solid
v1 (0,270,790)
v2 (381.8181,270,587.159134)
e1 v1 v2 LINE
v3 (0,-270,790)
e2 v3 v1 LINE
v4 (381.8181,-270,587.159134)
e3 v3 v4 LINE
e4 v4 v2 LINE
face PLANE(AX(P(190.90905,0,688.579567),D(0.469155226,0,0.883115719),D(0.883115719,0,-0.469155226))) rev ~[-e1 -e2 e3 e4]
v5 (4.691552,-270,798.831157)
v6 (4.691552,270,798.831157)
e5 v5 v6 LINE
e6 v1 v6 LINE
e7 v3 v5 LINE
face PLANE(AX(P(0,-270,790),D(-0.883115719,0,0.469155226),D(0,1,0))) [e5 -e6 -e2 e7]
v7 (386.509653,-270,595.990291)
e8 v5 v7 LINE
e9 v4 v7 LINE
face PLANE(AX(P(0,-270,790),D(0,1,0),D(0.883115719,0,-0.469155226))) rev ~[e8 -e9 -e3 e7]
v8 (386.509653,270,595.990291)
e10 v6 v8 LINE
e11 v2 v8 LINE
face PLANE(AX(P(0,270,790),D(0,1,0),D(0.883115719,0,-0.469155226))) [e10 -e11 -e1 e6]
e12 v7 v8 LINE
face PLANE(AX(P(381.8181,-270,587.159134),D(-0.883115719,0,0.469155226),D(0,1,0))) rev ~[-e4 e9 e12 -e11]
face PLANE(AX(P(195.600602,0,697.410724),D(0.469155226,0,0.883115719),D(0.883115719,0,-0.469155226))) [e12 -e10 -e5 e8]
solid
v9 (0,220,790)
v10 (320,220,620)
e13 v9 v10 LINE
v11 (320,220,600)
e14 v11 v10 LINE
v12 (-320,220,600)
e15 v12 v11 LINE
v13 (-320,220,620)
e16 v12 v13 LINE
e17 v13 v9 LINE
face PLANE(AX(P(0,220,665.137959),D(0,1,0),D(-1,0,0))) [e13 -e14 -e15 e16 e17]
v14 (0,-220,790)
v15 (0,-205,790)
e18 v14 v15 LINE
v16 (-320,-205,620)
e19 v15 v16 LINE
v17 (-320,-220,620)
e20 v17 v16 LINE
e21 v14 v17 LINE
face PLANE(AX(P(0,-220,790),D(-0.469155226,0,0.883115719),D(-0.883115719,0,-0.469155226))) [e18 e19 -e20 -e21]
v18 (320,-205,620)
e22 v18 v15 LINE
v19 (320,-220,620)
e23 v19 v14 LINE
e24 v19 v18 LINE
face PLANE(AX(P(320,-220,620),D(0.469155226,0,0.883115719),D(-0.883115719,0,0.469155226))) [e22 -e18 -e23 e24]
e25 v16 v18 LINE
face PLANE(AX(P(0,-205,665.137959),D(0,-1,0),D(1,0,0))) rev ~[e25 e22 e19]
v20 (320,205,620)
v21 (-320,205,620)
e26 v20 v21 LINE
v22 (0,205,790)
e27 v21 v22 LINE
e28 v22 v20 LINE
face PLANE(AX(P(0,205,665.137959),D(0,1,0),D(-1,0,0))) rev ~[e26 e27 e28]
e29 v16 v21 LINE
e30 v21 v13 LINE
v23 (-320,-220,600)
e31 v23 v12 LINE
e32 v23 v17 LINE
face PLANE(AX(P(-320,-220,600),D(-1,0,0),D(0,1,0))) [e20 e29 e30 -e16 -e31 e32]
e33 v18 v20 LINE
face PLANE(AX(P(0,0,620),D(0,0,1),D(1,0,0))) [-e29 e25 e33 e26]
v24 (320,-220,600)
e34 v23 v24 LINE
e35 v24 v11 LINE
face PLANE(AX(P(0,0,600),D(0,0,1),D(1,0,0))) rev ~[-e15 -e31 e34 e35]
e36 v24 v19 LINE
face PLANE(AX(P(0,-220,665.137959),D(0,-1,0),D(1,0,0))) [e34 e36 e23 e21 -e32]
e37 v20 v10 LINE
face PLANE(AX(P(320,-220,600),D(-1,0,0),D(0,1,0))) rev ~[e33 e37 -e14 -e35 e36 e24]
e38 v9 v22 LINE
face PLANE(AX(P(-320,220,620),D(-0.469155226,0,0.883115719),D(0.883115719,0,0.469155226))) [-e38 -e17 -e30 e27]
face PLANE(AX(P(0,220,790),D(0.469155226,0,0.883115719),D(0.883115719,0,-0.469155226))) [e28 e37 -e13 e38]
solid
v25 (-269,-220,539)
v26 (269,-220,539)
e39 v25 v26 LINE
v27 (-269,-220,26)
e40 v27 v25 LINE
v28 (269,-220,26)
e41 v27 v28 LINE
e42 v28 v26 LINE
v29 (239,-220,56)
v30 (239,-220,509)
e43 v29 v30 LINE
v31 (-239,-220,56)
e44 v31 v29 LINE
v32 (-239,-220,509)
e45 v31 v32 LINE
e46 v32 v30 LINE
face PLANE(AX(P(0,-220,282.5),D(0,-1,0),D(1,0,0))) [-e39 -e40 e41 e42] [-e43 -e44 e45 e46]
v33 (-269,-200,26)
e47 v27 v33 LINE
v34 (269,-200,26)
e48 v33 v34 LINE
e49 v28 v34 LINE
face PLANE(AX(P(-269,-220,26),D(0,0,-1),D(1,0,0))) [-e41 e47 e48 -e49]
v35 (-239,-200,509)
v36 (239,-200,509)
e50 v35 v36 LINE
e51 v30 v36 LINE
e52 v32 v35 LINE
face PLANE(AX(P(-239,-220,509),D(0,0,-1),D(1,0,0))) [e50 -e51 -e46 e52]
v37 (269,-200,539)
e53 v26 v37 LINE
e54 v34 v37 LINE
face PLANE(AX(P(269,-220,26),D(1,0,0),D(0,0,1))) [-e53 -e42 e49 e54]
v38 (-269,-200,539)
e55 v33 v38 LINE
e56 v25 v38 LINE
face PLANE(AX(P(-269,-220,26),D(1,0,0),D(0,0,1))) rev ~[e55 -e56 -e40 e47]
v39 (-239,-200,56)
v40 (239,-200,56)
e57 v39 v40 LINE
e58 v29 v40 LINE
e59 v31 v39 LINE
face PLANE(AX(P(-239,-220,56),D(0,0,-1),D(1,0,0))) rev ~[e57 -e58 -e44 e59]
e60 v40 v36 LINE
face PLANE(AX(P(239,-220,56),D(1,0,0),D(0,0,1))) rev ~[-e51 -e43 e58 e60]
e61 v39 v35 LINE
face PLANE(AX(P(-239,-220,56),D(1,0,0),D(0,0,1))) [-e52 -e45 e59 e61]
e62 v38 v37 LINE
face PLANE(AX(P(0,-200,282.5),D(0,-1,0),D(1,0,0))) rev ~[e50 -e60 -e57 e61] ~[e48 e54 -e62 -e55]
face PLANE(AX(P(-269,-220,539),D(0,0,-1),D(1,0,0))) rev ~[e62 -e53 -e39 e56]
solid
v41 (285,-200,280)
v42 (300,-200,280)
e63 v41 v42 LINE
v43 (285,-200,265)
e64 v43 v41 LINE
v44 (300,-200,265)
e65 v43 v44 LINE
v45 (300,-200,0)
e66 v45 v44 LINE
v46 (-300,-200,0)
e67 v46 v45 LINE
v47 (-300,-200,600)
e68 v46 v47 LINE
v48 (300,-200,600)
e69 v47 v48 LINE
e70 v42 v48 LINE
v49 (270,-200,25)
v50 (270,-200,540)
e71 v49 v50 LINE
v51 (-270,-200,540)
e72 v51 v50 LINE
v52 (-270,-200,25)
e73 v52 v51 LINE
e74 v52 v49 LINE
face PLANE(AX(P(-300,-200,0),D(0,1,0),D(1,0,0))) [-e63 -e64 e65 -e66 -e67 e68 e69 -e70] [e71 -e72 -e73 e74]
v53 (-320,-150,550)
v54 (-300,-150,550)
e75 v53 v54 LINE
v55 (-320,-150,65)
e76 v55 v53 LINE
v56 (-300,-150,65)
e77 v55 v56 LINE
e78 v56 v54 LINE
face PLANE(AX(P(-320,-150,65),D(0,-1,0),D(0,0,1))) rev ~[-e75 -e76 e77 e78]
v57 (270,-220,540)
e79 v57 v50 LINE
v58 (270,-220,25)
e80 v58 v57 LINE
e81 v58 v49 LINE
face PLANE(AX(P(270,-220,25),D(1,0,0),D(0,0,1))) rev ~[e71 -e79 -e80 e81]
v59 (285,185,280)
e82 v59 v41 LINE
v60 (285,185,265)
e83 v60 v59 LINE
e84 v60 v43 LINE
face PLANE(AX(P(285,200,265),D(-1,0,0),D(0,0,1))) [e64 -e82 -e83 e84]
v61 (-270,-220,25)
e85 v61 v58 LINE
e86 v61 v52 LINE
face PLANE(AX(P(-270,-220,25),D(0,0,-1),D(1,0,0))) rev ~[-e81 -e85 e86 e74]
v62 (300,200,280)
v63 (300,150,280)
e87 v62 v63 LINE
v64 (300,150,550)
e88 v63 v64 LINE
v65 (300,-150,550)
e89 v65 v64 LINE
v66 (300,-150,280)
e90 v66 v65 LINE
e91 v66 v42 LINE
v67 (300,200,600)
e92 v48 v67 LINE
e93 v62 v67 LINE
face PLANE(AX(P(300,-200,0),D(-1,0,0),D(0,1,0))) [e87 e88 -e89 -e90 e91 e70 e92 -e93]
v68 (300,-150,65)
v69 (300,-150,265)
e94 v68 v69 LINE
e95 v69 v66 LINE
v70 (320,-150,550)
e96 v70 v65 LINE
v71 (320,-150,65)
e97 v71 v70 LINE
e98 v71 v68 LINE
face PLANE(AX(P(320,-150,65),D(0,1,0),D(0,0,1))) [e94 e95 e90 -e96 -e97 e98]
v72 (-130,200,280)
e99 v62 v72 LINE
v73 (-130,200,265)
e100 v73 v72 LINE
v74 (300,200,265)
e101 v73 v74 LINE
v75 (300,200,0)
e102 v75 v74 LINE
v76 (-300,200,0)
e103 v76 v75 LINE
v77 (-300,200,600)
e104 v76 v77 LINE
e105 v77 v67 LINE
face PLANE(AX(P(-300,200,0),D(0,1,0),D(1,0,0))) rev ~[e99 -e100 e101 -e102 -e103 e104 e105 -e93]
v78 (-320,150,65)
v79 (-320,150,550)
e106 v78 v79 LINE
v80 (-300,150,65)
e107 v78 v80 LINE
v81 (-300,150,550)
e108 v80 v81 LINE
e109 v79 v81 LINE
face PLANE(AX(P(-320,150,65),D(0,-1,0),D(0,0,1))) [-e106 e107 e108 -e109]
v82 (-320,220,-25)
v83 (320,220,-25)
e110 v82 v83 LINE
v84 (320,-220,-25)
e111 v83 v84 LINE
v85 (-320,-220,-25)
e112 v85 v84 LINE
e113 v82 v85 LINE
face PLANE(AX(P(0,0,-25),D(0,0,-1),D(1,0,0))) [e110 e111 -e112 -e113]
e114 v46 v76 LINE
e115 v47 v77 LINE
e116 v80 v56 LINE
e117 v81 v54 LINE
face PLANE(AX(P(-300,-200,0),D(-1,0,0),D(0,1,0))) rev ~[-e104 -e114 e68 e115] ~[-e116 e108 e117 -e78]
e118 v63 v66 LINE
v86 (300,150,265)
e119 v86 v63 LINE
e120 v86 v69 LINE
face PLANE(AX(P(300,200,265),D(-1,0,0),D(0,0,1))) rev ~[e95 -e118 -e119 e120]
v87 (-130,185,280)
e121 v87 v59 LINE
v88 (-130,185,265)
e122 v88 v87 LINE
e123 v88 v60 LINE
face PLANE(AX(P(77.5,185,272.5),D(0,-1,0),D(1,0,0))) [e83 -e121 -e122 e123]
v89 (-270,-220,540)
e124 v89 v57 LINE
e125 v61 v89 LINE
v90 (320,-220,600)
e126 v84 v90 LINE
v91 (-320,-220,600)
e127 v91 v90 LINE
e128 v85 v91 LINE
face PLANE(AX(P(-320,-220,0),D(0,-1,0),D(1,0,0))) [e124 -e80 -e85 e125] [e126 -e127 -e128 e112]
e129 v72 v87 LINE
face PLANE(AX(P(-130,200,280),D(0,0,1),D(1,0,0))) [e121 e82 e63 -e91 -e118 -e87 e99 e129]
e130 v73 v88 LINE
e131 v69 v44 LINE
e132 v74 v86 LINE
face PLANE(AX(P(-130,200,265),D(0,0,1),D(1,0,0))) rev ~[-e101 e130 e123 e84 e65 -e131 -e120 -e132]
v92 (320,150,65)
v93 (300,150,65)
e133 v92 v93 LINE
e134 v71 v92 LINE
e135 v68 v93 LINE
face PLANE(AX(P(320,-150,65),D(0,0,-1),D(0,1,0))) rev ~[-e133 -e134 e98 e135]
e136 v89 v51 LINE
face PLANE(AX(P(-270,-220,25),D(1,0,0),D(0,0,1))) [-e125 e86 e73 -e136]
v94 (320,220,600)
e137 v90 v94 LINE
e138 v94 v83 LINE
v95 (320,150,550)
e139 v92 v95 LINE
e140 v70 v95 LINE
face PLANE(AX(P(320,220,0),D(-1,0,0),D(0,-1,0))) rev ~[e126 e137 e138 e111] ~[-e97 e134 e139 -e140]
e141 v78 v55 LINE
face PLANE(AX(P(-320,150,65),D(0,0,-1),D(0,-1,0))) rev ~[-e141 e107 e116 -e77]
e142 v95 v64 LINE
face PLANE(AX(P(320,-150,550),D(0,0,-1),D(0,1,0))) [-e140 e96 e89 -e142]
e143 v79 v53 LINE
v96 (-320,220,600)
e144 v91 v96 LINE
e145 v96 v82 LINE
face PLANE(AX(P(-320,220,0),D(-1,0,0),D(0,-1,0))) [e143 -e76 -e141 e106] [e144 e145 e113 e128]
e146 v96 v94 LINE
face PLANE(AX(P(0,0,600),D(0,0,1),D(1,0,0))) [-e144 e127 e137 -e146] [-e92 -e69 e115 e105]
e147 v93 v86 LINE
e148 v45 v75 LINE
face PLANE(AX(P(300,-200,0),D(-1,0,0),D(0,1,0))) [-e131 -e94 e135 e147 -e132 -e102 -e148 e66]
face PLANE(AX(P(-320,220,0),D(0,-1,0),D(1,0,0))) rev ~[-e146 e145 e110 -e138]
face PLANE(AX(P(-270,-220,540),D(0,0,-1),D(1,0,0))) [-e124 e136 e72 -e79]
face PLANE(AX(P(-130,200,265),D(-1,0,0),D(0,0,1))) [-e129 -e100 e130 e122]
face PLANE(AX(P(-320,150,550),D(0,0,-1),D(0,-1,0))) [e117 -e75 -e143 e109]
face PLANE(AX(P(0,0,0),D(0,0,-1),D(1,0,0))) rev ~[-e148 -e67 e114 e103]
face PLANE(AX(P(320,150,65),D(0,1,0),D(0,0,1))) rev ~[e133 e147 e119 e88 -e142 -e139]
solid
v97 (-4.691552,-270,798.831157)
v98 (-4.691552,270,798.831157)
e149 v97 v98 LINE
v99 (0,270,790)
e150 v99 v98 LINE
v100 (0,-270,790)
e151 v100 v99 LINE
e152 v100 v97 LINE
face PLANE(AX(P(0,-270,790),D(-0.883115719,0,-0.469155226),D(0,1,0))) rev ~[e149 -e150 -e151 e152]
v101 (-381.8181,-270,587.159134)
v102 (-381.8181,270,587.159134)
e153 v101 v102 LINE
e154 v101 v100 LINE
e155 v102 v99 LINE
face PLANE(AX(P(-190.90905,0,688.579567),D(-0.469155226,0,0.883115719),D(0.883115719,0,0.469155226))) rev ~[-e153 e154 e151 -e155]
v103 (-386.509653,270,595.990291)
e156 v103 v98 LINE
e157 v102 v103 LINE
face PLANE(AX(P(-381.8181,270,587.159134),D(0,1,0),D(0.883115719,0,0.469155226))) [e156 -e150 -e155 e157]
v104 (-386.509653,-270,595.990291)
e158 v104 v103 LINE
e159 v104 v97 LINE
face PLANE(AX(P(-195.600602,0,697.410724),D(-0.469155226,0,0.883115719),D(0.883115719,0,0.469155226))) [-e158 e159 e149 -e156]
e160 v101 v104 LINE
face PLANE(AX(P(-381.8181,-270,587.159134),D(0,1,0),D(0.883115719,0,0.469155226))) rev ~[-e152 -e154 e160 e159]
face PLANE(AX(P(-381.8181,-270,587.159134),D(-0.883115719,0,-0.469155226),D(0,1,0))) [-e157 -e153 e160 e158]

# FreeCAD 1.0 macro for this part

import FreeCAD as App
import Part
import Sketcher
from FreeCAD import Vector
Q = App.Units.Quantity

doc = App.newDocument("Part")
params = doc.addObject("Spreadsheet::Sheet", "Params")
for row, (alias, value) in enumerate([
    ("sketch1_width", "640 mm"),
    ("sketch1_width2", "600 mm"),
    ("sketch1_height", "440 mm"),
    ("sketch1_height2", "400 mm"),
    ("pad1_length", "600 mm"),
    ("sketch2_width", "300 mm"),
    ("sketch2_height", "485 mm"),
    ("pocket1_length", "20 mm"),
    ("sketch3_width", "540 mm"),
    ("sketch3_height", "515 mm"),
    ("pocket2_length", "20 mm"),
    ("sketch4_width", "300 mm"),
    ("sketch4_height", "485 mm"),
    ("sketch5_width", "640 mm"),
    ("sketch5_height", "440 mm"),
    ("pad2_length", "25 mm"),
    ("sketch6_width", "15 mm"),
    ("sketch7_width", "415 mm"),
    ("sketch7_height", "15 mm"),
    ("pad4_length", "15 mm"),
    ("sketch8_width", "640 mm"),
    ("sketch8_height", "440 mm"),
    ("pad5_length", "20 mm"),
    ("sketch9_width", "640 mm"),
    ("pad6_length", "15 mm"),
    ("sketch10_width", "640 mm"),
    ("pad7_length", "15 mm"),
    ("sketch11_height", "539.999999 mm"),
    ("pad8_length", "10 mm"),
    ("sketch12_height", "539.999999 mm"),
    ("pad9_length", "10 mm"),
    ("sketch13_width", "538 mm"),
    ("sketch13_width2", "478 mm"),
    ("sketch13_height", "513 mm"),
    ("sketch13_height2", "453 mm"),
    ("pad10_length", "20 mm"),
], start=1):
    params.set(f"A{row}", alias)
    params.set(f"B{row}", "=" + value)
    params.setAlias(f"B{row}", alias)

body = doc.addObject("PartDesign::Body", "Body")

# Sketch on XY plane
sketch1 = body.newObject("Sketcher::SketchObject", "Sketch")
sketch1.AttachmentSupport = (doc.getObject("XY_Plane"), [""])
sketch1.MapMode = "FlatFace"
sketch1.addGeometry(Part.LineSegment(Vector(-320, 220, 0), Vector(-320, -220, 0)), False)
sketch1.addGeometry(Part.LineSegment(Vector(-320, -220, 0), Vector(320, -220, 0)), False)
sketch1.addGeometry(Part.LineSegment(Vector(320, -220, 0), Vector(320, 220, 0)), False)
sketch1.addGeometry(Part.LineSegment(Vector(320, 220, 0), Vector(-320, 220, 0)), False)
sketch1.addGeometry(Part.LineSegment(Vector(300, -200, 0), Vector(-300, -200, 0)), False)
sketch1.addGeometry(Part.LineSegment(Vector(-300, -200, 0), Vector(-300, 200, 0)), False)
sketch1.addGeometry(Part.LineSegment(Vector(-300, 200, 0), Vector(300, 200, 0)), False)
sketch1.addGeometry(Part.LineSegment(Vector(300, 200, 0), Vector(300, -200, 0)), False)
sketch1.addConstraint(Sketcher.Constraint("Coincident", 0, 2, 1, 1))
sketch1.addConstraint(Sketcher.Constraint("Coincident", 1, 2, 2, 1))
sketch1.addConstraint(Sketcher.Constraint("Coincident", 2, 2, 3, 1))
sketch1.addConstraint(Sketcher.Constraint("Coincident", 3, 2, 0, 1))
sketch1.addConstraint(Sketcher.Constraint("Coincident", 4, 2, 5, 1))
sketch1.addConstraint(Sketcher.Constraint("Coincident", 5, 2, 6, 1))
sketch1.addConstraint(Sketcher.Constraint("Coincident", 6, 2, 7, 1))
sketch1.addConstraint(Sketcher.Constraint("Coincident", 7, 2, 4, 1))
sketch1.addConstraint(Sketcher.Constraint("Vertical", 0))
sketch1.addConstraint(Sketcher.Constraint("Horizontal", 1))
sketch1.addConstraint(Sketcher.Constraint("Vertical", 2))
sketch1.addConstraint(Sketcher.Constraint("Horizontal", 3))
sketch1.addConstraint(Sketcher.Constraint("Horizontal", 4))
sketch1.addConstraint(Sketcher.Constraint("Vertical", 5))
sketch1.addConstraint(Sketcher.Constraint("Horizontal", 6))
sketch1.addConstraint(Sketcher.Constraint("Vertical", 7))
sketch1.addConstraint(Sketcher.Constraint("Symmetric", 0, 2, 2, 2, -1, 1))
sketch1.addConstraint(Sketcher.Constraint("Symmetric", 4, 2, 6, 2, -1, 1))
sketch1.addConstraint(Sketcher.Constraint("DistanceX", 1, 1, 1, 2, Q("640 mm")))
sketch1.addConstraint(Sketcher.Constraint("DistanceX", 4, 2, 4, 1, Q("600 mm")))
sketch1.addConstraint(Sketcher.Constraint("DistanceY", 0, 2, 0, 1, Q("440 mm")))
sketch1.addConstraint(Sketcher.Constraint("DistanceY", 5, 1, 5, 2, Q("400 mm")))
sketch1.setExpression("Constraints[18]", "Params.sketch1_width")
sketch1.setExpression("Constraints[19]", "Params.sketch1_width2")
sketch1.setExpression("Constraints[20]", "Params.sketch1_height")
sketch1.setExpression("Constraints[21]", "Params.sketch1_height2")
pad1 = body.newObject("PartDesign::Pad", "Pad")
pad1.Profile = sketch1
pad1.setExpression("Length", "Params.pad1_length")

# Sketch on YZ plane
sketch2 = body.newObject("Sketcher::SketchObject", "Sketch001")
sketch2.AttachmentSupport = (doc.getObject("YZ_Plane"), [""])
sketch2.MapMode = "FlatFace"
sketch2.AttachmentOffset = App.Placement(Vector(0, 0, 320), App.Rotation())
sketch2.addGeometry(Part.LineSegment(Vector(-150, 550, 0), Vector(-150, 65, 0)), False)
sketch2.addGeometry(Part.LineSegment(Vector(-150, 65, 0), Vector(150, 65, 0)), False)
sketch2.addGeometry(Part.LineSegment(Vector(150, 65, 0), Vector(150, 550, 0)), False)
sketch2.addGeometry(Part.LineSegment(Vector(150, 550, 0), Vector(-150, 550, 0)), False)
sketch2.addConstraint(Sketcher.Constraint("Coincident", 0, 2, 1, 1))
sketch2.addConstraint(Sketcher.Constraint("Coincident", 1, 2, 2, 1))
sketch2.addConstraint(Sketcher.Constraint("Coincident", 2, 2, 3, 1))
sketch2.addConstraint(Sketcher.Constraint("Coincident", 3, 2, 0, 1))
sketch2.addConstraint(Sketcher.Constraint("Vertical", 0))
sketch2.addConstraint(Sketcher.Constraint("Horizontal", 1))
sketch2.addConstraint(Sketcher.Constraint("Vertical", 2))
sketch2.addConstraint(Sketcher.Constraint("Horizontal", 3))
sketch2.addConstraint(Sketcher.Constraint("DistanceX", 1, 1, 1, 2, Q("300 mm")))
sketch2.addConstraint(Sketcher.Constraint("DistanceY", 0, 2, 0, 1, Q("485 mm")))
sketch2.addConstraint(Sketcher.Constraint("DistanceX", 0, 2, -1, 1, Q("150 mm")))
sketch2.addConstraint(Sketcher.Constraint("DistanceY", -1, 1, 0, 2, Q("65 mm")))
sketch2.setExpression("Constraints[8]", "Params.sketch2_width")
sketch2.setExpression("Constraints[9]", "Params.sketch2_height")
pocket1 = body.newObject("PartDesign::Pocket", "Pocket")
pocket1.Profile = sketch2
pocket1.setExpression("Length", "Params.pocket1_length")

# Sketch on XZ plane
sketch3 = body.newObject("Sketcher::SketchObject", "Sketch002")
sketch3.AttachmentSupport = (doc.getObject("XZ_Plane"), [""])
sketch3.MapMode = "FlatFace"
sketch3.AttachmentOffset = App.Placement(Vector(0, 0, 220), App.Rotation())
sketch3.addGeometry(Part.LineSegment(Vector(-270, 540, 0), Vector(-270, 25, 0)), False)
sketch3.addGeometry(Part.LineSegment(Vector(-270, 25, 0), Vector(270, 25, 0)), False)
sketch3.addGeometry(Part.LineSegment(Vector(270, 25, 0), Vector(270, 540, 0)), False)
sketch3.addGeometry(Part.LineSegment(Vector(270, 540, 0), Vector(-270, 540, 0)), False)
sketch3.addConstraint(Sketcher.Constraint("Coincident", 0, 2, 1, 1))
sketch3.addConstraint(Sketcher.Constraint("Coincident", 1, 2, 2, 1))
sketch3.addConstraint(Sketcher.Constraint("Coincident", 2, 2, 3, 1))
sketch3.addConstraint(Sketcher.Constraint("Coincident", 3, 2, 0, 1))
sketch3.addConstraint(Sketcher.Constraint("Vertical", 0))
sketch3.addConstraint(Sketcher.Constraint("Horizontal", 1))
sketch3.addConstraint(Sketcher.Constraint("Vertical", 2))
sketch3.addConstraint(Sketcher.Constraint("Horizontal", 3))
sketch3.addConstraint(Sketcher.Constraint("DistanceX", 1, 1, 1, 2, Q("540 mm")))
sketch3.addConstraint(Sketcher.Constraint("DistanceY", 0, 2, 0, 1, Q("515 mm")))
sketch3.addConstraint(Sketcher.Constraint("DistanceX", 0, 2, -1, 1, Q("270 mm")))
sketch3.addConstraint(Sketcher.Constraint("DistanceY", -1, 1, 0, 2, Q("25 mm")))
sketch3.setExpression("Constraints[8]", "Params.sketch3_width")
sketch3.setExpression("Constraints[9]", "Params.sketch3_height")
pocket2 = body.newObject("PartDesign::Pocket", "Pocket001")
pocket2.Profile = sketch3
pocket2.setExpression("Length", "Params.pocket2_length")

# Sketch on YZ plane
sketch4 = body.newObject("Sketcher::SketchObject", "Sketch003")
sketch4.AttachmentSupport = (doc.getObject("YZ_Plane"), [""])
sketch4.MapMode = "FlatFace"
sketch4.AttachmentOffset = App.Placement(Vector(0, 0, -320), App.Rotation())
sketch4.addGeometry(Part.LineSegment(Vector(150, 550, 0), Vector(150, 65, 0)), False)
sketch4.addGeometry(Part.LineSegment(Vector(150, 65, 0), Vector(-150, 65, 0)), False)
sketch4.addGeometry(Part.LineSegment(Vector(-150, 65, 0), Vector(-150, 550, 0)), False)
sketch4.addGeometry(Part.LineSegment(Vector(-150, 550, 0), Vector(150, 550, 0)), False)
sketch4.addConstraint(Sketcher.Constraint("Coincident", 0, 2, 1, 1))
sketch4.addConstraint(Sketcher.Constraint("Coincident", 1, 2, 2, 1))
sketch4.addConstraint(Sketcher.Constraint("Coincident", 2, 2, 3, 1))
sketch4.addConstraint(Sketcher.Constraint("Coincident", 3, 2, 0, 1))
sketch4.addConstraint(Sketcher.Constraint("Vertical", 0))
sketch4.addConstraint(Sketcher.Constraint("Horizontal", 1))
sketch4.addConstraint(Sketcher.Constraint("Vertical", 2))
sketch4.addConstraint(Sketcher.Constraint("Horizontal", 3))
sketch4.addConstraint(Sketcher.Constraint("DistanceX", 1, 2, 1, 1, Q("300 mm")))
sketch4.addConstraint(Sketcher.Constraint("DistanceY", 0, 2, 0, 1, Q("485 mm")))
sketch4.addConstraint(Sketcher.Constraint("DistanceX", -1, 1, 0, 2, Q("150 mm")))
sketch4.addConstraint(Sketcher.Constraint("DistanceY", -1, 1, 0, 2, Q("65 mm")))
sketch4.setExpression("Constraints[8]", "Params.sketch4_width")
sketch4.setExpression("Constraints[9]", "Params.sketch4_height")
pocket3 = body.newObject("PartDesign::Pocket", "Pocket002")
pocket3.Profile = sketch4
pocket3.Type = "ThroughAll"
pocket3.Reversed = True

# Sketch on XY plane
sketch5 = body.newObject("Sketcher::SketchObject", "Sketch004")
sketch5.AttachmentSupport = (doc.getObject("XY_Plane"), [""])
sketch5.MapMode = "FlatFace"
sketch5.addGeometry(Part.LineSegment(Vector(-320, -220, 0), Vector(-320, 220, 0)), False)
sketch5.addGeometry(Part.LineSegment(Vector(-320, 220, 0), Vector(320, 220, 0)), False)
sketch5.addGeometry(Part.LineSegment(Vector(320, 220, 0), Vector(320, -220, 0)), False)
sketch5.addGeometry(Part.LineSegment(Vector(320, -220, 0), Vector(-320, -220, 0)), False)
sketch5.addConstraint(Sketcher.Constraint("Coincident", 0, 2, 1, 1))
sketch5.addConstraint(Sketcher.Constraint("Coincident", 1, 2, 2, 1))
sketch5.addConstraint(Sketcher.Constraint("Coincident", 2, 2, 3, 1))
sketch5.addConstraint(Sketcher.Constraint("Coincident", 3, 2, 0, 1))
sketch5.addConstraint(Sketcher.Constraint("Vertical", 0))
sketch5.addConstraint(Sketcher.Constraint("Horizontal", 1))
sketch5.addConstraint(Sketcher.Constraint("Vertical", 2))
sketch5.addConstraint(Sketcher.Constraint("Horizontal", 3))
sketch5.addConstraint(Sketcher.Constraint("Symmetric", 0, 2, 2, 2, -1, 1))
sketch5.addConstraint(Sketcher.Constraint("DistanceX", 1, 1, 1, 2, Q("640 mm")))
sketch5.addConstraint(Sketcher.Constraint("DistanceY", 0, 1, 0, 2, Q("440 mm")))
sketch5.setExpression("Constraints[9]", "Params.sketch5_width")
sketch5.setExpression("Constraints[10]", "Params.sketch5_height")
pad2 = body.newObject("PartDesign::Pad", "Pad001")
pad2.Profile = sketch5
pad2.setExpression("Length", "Params.pad2_length")
pad2.Reversed = True

# Sketch on XZ plane
sketch6 = body.newObject("Sketcher::SketchObject", "Sketch005")
sketch6.AttachmentSupport = (doc.getObject("XZ_Plane"), [""])
sketch6.MapMode = "FlatFace"
sketch6.AttachmentOffset = App.Placement(Vector(0, 0, -200), App.Rotation())
sketch6.addGeometry(Part.LineSegment(Vector(285, 280, 0), Vector(285, 265, 0)), False)
sketch6.addGeometry(Part.LineSegment(Vector(285, 265, 0), Vector(300, 265, 0)), False)
sketch6.addGeometry(Part.LineSegment(Vector(300, 265, 0), Vector(300, 280, 0)), False)
sketch6.addGeometry(Part.LineSegment(Vector(300, 280, 0), Vector(285, 280, 0)), False)
sketch6.addConstraint(Sketcher.Constraint("Coincident", 0, 2, 1, 1))
sketch6.addConstraint(Sketcher.Constraint("Coincident", 1, 2, 2, 1))
sketch6.addConstraint(Sketcher.Constraint("Coincident", 2, 2, 3, 1))
sketch6.addConstraint(Sketcher.Constraint("Coincident", 3, 2, 0, 1))
sketch6.addConstraint(Sketcher.Constraint("Vertical", 0))
sketch6.addConstraint(Sketcher.Constraint("Horizontal", 1))
sketch6.addConstraint(Sketcher.Constraint("Vertical", 2))
sketch6.addConstraint(Sketcher.Constraint("Horizontal", 3))
sketch6.addConstraint(Sketcher.Constraint("Equal", 3, 0))
sketch6.addConstraint(Sketcher.Constraint("DistanceX", 1, 1, 1, 2, Q("15 mm")))
sketch6.addConstraint(Sketcher.Constraint("DistanceX", -1, 1, 0, 2, Q("285 mm")))
sketch6.addConstraint(Sketcher.Constraint("DistanceY", -1, 1, 0, 2, Q("265 mm")))
sketch6.setExpression("Constraints[9]", "Params.sketch6_width")
pad3 = body.newObject("PartDesign::Pad", "Pad002")
pad3.Profile = sketch6
pad3.Type = "UpToLast"

# Sketch on XZ plane
sketch7 = body.newObject("Sketcher::SketchObject", "Sketch006")
sketch7.AttachmentSupport = (doc.getObject("XZ_Plane"), [""])
sketch7.MapMode = "FlatFace"
sketch7.AttachmentOffset = App.Placement(Vector(0, 0, -200), App.Rotation())
sketch7.addGeometry(Part.LineSegment(Vector(-130, 280, 0), Vector(-130, 265, 0)), False)
sketch7.addGeometry(Part.LineSegment(Vector(-130, 265, 0), Vector(285, 265, 0)), False)
sketch7.addGeometry(Part.LineSegment(Vector(285, 265, 0), Vector(285, 280, 0)), False)
sketch7.addGeometry(Part.LineSegment(Vector(285, 280, 0), Vector(-130, 280, 0)), False)
sketch7.addConstraint(Sketcher.Constraint("Coincident", 0, 2, 1, 1))
sketch7.addConstraint(Sketcher.Constraint("Coincident", 1, 2, 2, 1))
sketch7.addConstraint(Sketcher.Constraint("Coincident", 2, 2, 3, 1))
sketch7.addConstraint(Sketcher.Constraint("Coincident", 3, 2, 0, 1))
sketch7.addConstraint(Sketcher.Constraint("Vertical", 0))
sketch7.addConstraint(Sketcher.Constraint("Horizontal", 1))
sketch7.addConstraint(Sketcher.Constraint("Vertical", 2))
sketch7.addConstraint(Sketcher.Constraint("Horizontal", 3))
sketch7.addConstraint(Sketcher.Constraint("DistanceX", 1, 1, 1, 2, Q("415 mm")))
sketch7.addConstraint(Sketcher.Constraint("DistanceY", 0, 2, 0, 1, Q("15 mm")))
sketch7.addConstraint(Sketcher.Constraint("DistanceX", 0, 2, -1, 1, Q("130 mm")))
sketch7.addConstraint(Sketcher.Constraint("DistanceY", -1, 1, 0, 2, Q("265 mm")))
sketch7.setExpression("Constraints[8]", "Params.sketch7_width")
sketch7.setExpression("Constraints[9]", "Params.sketch7_height")
pad4 = body.newObject("PartDesign::Pad", "Pad003")
pad4.Profile = sketch7
pad4.setExpression("Length", "Params.pad4_length")
body2 = doc.addObject("PartDesign::Body", "Body001")

# Sketch on XY plane
sketch8 = body2.newObject("Sketcher::SketchObject", "Sketch007")
sketch8.AttachmentSupport = (doc.getObject("XY_Plane001"), [""])
sketch8.MapMode = "FlatFace"
sketch8.AttachmentOffset = App.Placement(Vector(0, 0, 600), App.Rotation())
sketch8.addGeometry(Part.LineSegment(Vector(-320, 220, 0), Vector(-320, -220, 0)), False)
sketch8.addGeometry(Part.LineSegment(Vector(-320, -220, 0), Vector(320, -220, 0)), False)
sketch8.addGeometry(Part.LineSegment(Vector(320, -220, 0), Vector(320, 220, 0)), False)
sketch8.addGeometry(Part.LineSegment(Vector(320, 220, 0), Vector(-320, 220, 0)), False)
sketch8.addConstraint(Sketcher.Constraint("Coincident", 0, 2, 1, 1))
sketch8.addConstraint(Sketcher.Constraint("Coincident", 1, 2, 2, 1))
sketch8.addConstraint(Sketcher.Constraint("Coincident", 2, 2, 3, 1))
sketch8.addConstraint(Sketcher.Constraint("Coincident", 3, 2, 0, 1))
sketch8.addConstraint(Sketcher.Constraint("Vertical", 0))
sketch8.addConstraint(Sketcher.Constraint("Horizontal", 1))
sketch8.addConstraint(Sketcher.Constraint("Vertical", 2))
sketch8.addConstraint(Sketcher.Constraint("Horizontal", 3))
sketch8.addConstraint(Sketcher.Constraint("Symmetric", 0, 2, 2, 2, -1, 1))
sketch8.addConstraint(Sketcher.Constraint("DistanceX", 1, 1, 1, 2, Q("640 mm")))
sketch8.addConstraint(Sketcher.Constraint("DistanceY", 0, 2, 0, 1, Q("440 mm")))
sketch8.setExpression("Constraints[9]", "Params.sketch8_width")
sketch8.setExpression("Constraints[10]", "Params.sketch8_height")
pad5 = body2.newObject("PartDesign::Pad", "Pad004")
pad5.Profile = sketch8
pad5.setExpression("Length", "Params.pad5_length")

# Sketch on XZ plane
sketch9 = body2.newObject("Sketcher::SketchObject", "Sketch008")
sketch9.AttachmentSupport = (doc.getObject("XZ_Plane001"), [""])
sketch9.MapMode = "FlatFace"
sketch9.AttachmentOffset = App.Placement(Vector(0, 0, 220), App.Rotation())
sketch9.addGeometry(Part.LineSegment(Vector(0, 790, 0), Vector(-320, 620, 0)), False)
sketch9.addGeometry(Part.LineSegment(Vector(-320, 620, 0), Vector(320, 620, 0)), False)
sketch9.addGeometry(Part.LineSegment(Vector(320, 620, 0), Vector(0, 790, 0)), False)
sketch9.addConstraint(Sketcher.Constraint("Coincident", 0, 2, 1, 1))
sketch9.addConstraint(Sketcher.Constraint("Coincident", 1, 2, 2, 1))
sketch9.addConstraint(Sketcher.Constraint("Coincident", 2, 2, 0, 1))
sketch9.addConstraint(Sketcher.Constraint("Horizontal", 1))
sketch9.addConstraint(Sketcher.Constraint("PointOnObject", 2, 2, -2))
sketch9.addConstraint(Sketcher.Constraint("Equal", 0, 2))
sketch9.addConstraint(Sketcher.Constraint("DistanceX", 1, 1, 1, 2, Q("640 mm")))
sketch9.addConstraint(Sketcher.Constraint("DistanceY", -1, 1, 0, 2, Q("620 mm")))
sketch9.addConstraint(Sketcher.Constraint("DistanceY", -1, 1, 2, 2, Q("790 mm")))
sketch9.setExpression("Constraints[6]", "Params.sketch9_width")
pad6 = body2.newObject("PartDesign::Pad", "Pad005")
pad6.Profile = sketch9
pad6.setExpression("Length", "Params.pad6_length")
pad6.Reversed = True

# Sketch on XZ plane
sketch10 = body2.newObject("Sketcher::SketchObject", "Sketch009")
sketch10.AttachmentSupport = (doc.getObject("XZ_Plane001"), [""])
sketch10.MapMode = "FlatFace"
sketch10.AttachmentOffset = App.Placement(Vector(0, 0, -220), App.Rotation())
sketch10.addGeometry(Part.LineSegment(Vector(0, 790, 0), Vector(320, 620, 0)), False)
sketch10.addGeometry(Part.LineSegment(Vector(320, 620, 0), Vector(-320, 620, 0)), False)
sketch10.addGeometry(Part.LineSegment(Vector(-320, 620, 0), Vector(0, 790, 0)), False)
sketch10.addConstraint(Sketcher.Constraint("Coincident", 0, 2, 1, 1))
sketch10.addConstraint(Sketcher.Constraint("Coincident", 1, 2, 2, 1))
sketch10.addConstraint(Sketcher.Constraint("Coincident", 2, 2, 0, 1))
sketch10.addConstraint(Sketcher.Constraint("Horizontal", 1))
sketch10.addConstraint(Sketcher.Constraint("PointOnObject", 2, 2, -2))
sketch10.addConstraint(Sketcher.Constraint("Equal", 0, 2))
sketch10.addConstraint(Sketcher.Constraint("DistanceX", 1, 2, 1, 1, Q("640 mm")))
sketch10.addConstraint(Sketcher.Constraint("DistanceY", -1, 1, 0, 2, Q("620 mm")))
sketch10.addConstraint(Sketcher.Constraint("DistanceY", -1, 1, 2, 2, Q("790 mm")))
sketch10.setExpression("Constraints[6]", "Params.sketch10_width")
pad7 = body2.newObject("PartDesign::Pad", "Pad006")
pad7.Profile = sketch10
pad7.setExpression("Length", "Params.pad7_length")
body3 = doc.addObject("PartDesign::Body", "Body002")

# Sketch on an angled plane
sketch11 = body3.newObject("Sketcher::SketchObject", "Sketch010")
sketch11.Placement = App.Placement(Vector(-327.3115, 0, 616.115765), App.Rotation(Vector(0.883115719, 0, 0.469155226), Vector(0, 0.999999999, 0), Vector(-0.469155226, 0, 0.883115719), "ZXY"))
sketch11.addGeometry(Part.LineSegment(Vector(-61.72079, 270, 0), Vector(-61.72079, -270, 0)), False)
sketch11.addGeometry(Part.LineSegment(Vector(-61.72079, -270, 0), Vector(370.632628, -270, 0)), False)
sketch11.addGeometry(Part.LineSegment(Vector(370.632628, -270, 0), Vector(370.632628, 270, 0)), False)
sketch11.addGeometry(Part.LineSegment(Vector(370.632628, 270, 0), Vector(-61.72079, 270, 0)), False)
sketch11.addConstraint(Sketcher.Constraint("Coincident", 0, 2, 1, 1))
sketch11.addConstraint(Sketcher.Constraint("Coincident", 1, 2, 2, 1))
sketch11.addConstraint(Sketcher.Constraint("Coincident", 2, 2, 3, 1))
sketch11.addConstraint(Sketcher.Constraint("Coincident", 3, 2, 0, 1))
sketch11.addConstraint(Sketcher.Constraint("Vertical", 0))
sketch11.addConstraint(Sketcher.Constraint("Horizontal", 1))
sketch11.addConstraint(Sketcher.Constraint("Vertical", 2))
sketch11.addConstraint(Sketcher.Constraint("Horizontal", 3))
sketch11.addConstraint(Sketcher.Constraint("DistanceY", 0, 2, 0, 1, Q("539.999999 mm")))
sketch11.addConstraint(Sketcher.Constraint("DistanceY", 0, 2, -1, 1, Q("270 mm")))
sketch11.addConstraint(Sketcher.Constraint("DistanceX", 1, 1, 1, 2, Q("432.353418 mm")))
sketch11.addConstraint(Sketcher.Constraint("DistanceX", 0, 2, -1, 1, Q("61.72079 mm")))
sketch11.setExpression("Constraints[8]", "Params.sketch11_height")
pad8 = body3.newObject("PartDesign::Pad", "Pad007")
pad8.Profile = sketch11
pad8.setExpression("Length", "Params.pad8_length")
body4 = doc.addObject("PartDesign::Body", "Body003")

# Sketch on an angled plane
sketch12 = body4.newObject("Sketcher::SketchObject", "Sketch011")
sketch12.Placement = App.Placement(Vector(327.3115, 0, 616.115765), App.Rotation(Vector(0.883115719, 0, -0.469155226), Vector(0, 0.999999999, 0), Vector(0.469155226, 0, 0.883115719), "ZXY"))
sketch12.addGeometry(Part.LineSegment(Vector(-370.632628, 270, 0), Vector(-370.632628, -270, 0)), False)
sketch12.addGeometry(Part.LineSegment(Vector(-370.632628, -270, 0), Vector(61.72079, -270, 0)), False)
sketch12.addGeometry(Part.LineSegment(Vector(61.72079, -270, 0), Vector(61.72079, 270, 0)), False)
sketch12.addGeometry(Part.LineSegment(Vector(61.72079, 270, 0), Vector(-370.632628, 270, 0)), False)
sketch12.addConstraint(Sketcher.Constraint("Coincident", 0, 2, 1, 1))
sketch12.addConstraint(Sketcher.Constraint("Coincident", 1, 2, 2, 1))
sketch12.addConstraint(Sketcher.Constraint("Coincident", 2, 2, 3, 1))
sketch12.addConstraint(Sketcher.Constraint("Coincident", 3, 2, 0, 1))
sketch12.addConstraint(Sketcher.Constraint("Vertical", 0))
sketch12.addConstraint(Sketcher.Constraint("Horizontal", 1))
sketch12.addConstraint(Sketcher.Constraint("Vertical", 2))
sketch12.addConstraint(Sketcher.Constraint("Horizontal", 3))
sketch12.addConstraint(Sketcher.Constraint("DistanceY", 0, 2, 0, 1, Q("539.999999 mm")))
sketch12.addConstraint(Sketcher.Constraint("DistanceY", 0, 2, -1, 1, Q("270 mm")))
sketch12.addConstraint(Sketcher.Constraint("DistanceX", 1, 1, 1, 2, Q("432.353418 mm")))
sketch12.addConstraint(Sketcher.Constraint("DistanceX", 0, 2, -1, 1, Q("370.632628 mm")))
sketch12.setExpression("Constraints[8]", "Params.sketch12_height")
pad9 = body4.newObject("PartDesign::Pad", "Pad008")
pad9.Profile = sketch12
pad9.setExpression("Length", "Params.pad9_length")
body5 = doc.addObject("PartDesign::Body", "Body004")

# Sketch on XZ plane
sketch13 = body5.newObject("Sketcher::SketchObject", "Sketch012")
sketch13.AttachmentSupport = (doc.getObject("XZ_Plane004"), [""])
sketch13.MapMode = "FlatFace"
sketch13.AttachmentOffset = App.Placement(Vector(0, 0, 220), App.Rotation())
sketch13.addGeometry(Part.LineSegment(Vector(-269, 539, 0), Vector(-269, 26, 0)), False)
sketch13.addGeometry(Part.LineSegment(Vector(-269, 26, 0), Vector(269, 26, 0)), False)
sketch13.addGeometry(Part.LineSegment(Vector(269, 26, 0), Vector(269, 539, 0)), False)
sketch13.addGeometry(Part.LineSegment(Vector(269, 539, 0), Vector(-269, 539, 0)), False)
sketch13.addGeometry(Part.LineSegment(Vector(239, 56, 0), Vector(-239, 56, 0)), False)
sketch13.addGeometry(Part.LineSegment(Vector(-239, 56, 0), Vector(-239, 509, 0)), False)
sketch13.addGeometry(Part.LineSegment(Vector(-239, 509, 0), Vector(239, 509, 0)), False)
sketch13.addGeometry(Part.LineSegment(Vector(239, 509, 0), Vector(239, 56, 0)), False)
sketch13.addConstraint(Sketcher.Constraint("Coincident", 0, 2, 1, 1))
sketch13.addConstraint(Sketcher.Constraint("Coincident", 1, 2, 2, 1))
sketch13.addConstraint(Sketcher.Constraint("Coincident", 2, 2, 3, 1))
sketch13.addConstraint(Sketcher.Constraint("Coincident", 3, 2, 0, 1))
sketch13.addConstraint(Sketcher.Constraint("Coincident", 4, 2, 5, 1))
sketch13.addConstraint(Sketcher.Constraint("Coincident", 5, 2, 6, 1))
sketch13.addConstraint(Sketcher.Constraint("Coincident", 6, 2, 7, 1))
sketch13.addConstraint(Sketcher.Constraint("Coincident", 7, 2, 4, 1))
sketch13.addConstraint(Sketcher.Constraint("Vertical", 0))
sketch13.addConstraint(Sketcher.Constraint("Horizontal", 1))
sketch13.addConstraint(Sketcher.Constraint("Vertical", 2))
sketch13.addConstraint(Sketcher.Constraint("Horizontal", 3))
sketch13.addConstraint(Sketcher.Constraint("Horizontal", 4))
sketch13.addConstraint(Sketcher.Constraint("Vertical", 5))
sketch13.addConstraint(Sketcher.Constraint("Horizontal", 6))
sketch13.addConstraint(Sketcher.Constraint("Vertical", 7))
sketch13.addConstraint(Sketcher.Constraint("DistanceX", 1, 1, 1, 2, Q("538 mm")))
sketch13.addConstraint(Sketcher.Constraint("DistanceX", 4, 2, 4, 1, Q("478 mm")))
sketch13.addConstraint(Sketcher.Constraint("DistanceY", 0, 2, 0, 1, Q("513 mm")))
sketch13.addConstraint(Sketcher.Constraint("DistanceY", 5, 1, 5, 2, Q("453 mm")))
sketch13.addConstraint(Sketcher.Constraint("DistanceX", 0, 2, -1, 1, Q("269 mm")))
sketch13.addConstraint(Sketcher.Constraint("DistanceY", -1, 1, 0, 2, Q("26 mm")))
sketch13.addConstraint(Sketcher.Constraint("DistanceX", 4, 2, -1, 1, Q("239 mm")))
sketch13.addConstraint(Sketcher.Constraint("DistanceY", -1, 1, 4, 2, Q("56 mm")))
sketch13.setExpression("Constraints[16]", "Params.sketch13_width")
sketch13.setExpression("Constraints[17]", "Params.sketch13_width2")
sketch13.setExpression("Constraints[18]", "Params.sketch13_height")
sketch13.setExpression("Constraints[19]", "Params.sketch13_height2")
pad10 = body5.newObject("PartDesign::Pad", "Pad009")
pad10.Profile = sketch13
pad10.setExpression("Length", "Params.pad10_length")
pad10.Reversed = True

doc.recompute()
